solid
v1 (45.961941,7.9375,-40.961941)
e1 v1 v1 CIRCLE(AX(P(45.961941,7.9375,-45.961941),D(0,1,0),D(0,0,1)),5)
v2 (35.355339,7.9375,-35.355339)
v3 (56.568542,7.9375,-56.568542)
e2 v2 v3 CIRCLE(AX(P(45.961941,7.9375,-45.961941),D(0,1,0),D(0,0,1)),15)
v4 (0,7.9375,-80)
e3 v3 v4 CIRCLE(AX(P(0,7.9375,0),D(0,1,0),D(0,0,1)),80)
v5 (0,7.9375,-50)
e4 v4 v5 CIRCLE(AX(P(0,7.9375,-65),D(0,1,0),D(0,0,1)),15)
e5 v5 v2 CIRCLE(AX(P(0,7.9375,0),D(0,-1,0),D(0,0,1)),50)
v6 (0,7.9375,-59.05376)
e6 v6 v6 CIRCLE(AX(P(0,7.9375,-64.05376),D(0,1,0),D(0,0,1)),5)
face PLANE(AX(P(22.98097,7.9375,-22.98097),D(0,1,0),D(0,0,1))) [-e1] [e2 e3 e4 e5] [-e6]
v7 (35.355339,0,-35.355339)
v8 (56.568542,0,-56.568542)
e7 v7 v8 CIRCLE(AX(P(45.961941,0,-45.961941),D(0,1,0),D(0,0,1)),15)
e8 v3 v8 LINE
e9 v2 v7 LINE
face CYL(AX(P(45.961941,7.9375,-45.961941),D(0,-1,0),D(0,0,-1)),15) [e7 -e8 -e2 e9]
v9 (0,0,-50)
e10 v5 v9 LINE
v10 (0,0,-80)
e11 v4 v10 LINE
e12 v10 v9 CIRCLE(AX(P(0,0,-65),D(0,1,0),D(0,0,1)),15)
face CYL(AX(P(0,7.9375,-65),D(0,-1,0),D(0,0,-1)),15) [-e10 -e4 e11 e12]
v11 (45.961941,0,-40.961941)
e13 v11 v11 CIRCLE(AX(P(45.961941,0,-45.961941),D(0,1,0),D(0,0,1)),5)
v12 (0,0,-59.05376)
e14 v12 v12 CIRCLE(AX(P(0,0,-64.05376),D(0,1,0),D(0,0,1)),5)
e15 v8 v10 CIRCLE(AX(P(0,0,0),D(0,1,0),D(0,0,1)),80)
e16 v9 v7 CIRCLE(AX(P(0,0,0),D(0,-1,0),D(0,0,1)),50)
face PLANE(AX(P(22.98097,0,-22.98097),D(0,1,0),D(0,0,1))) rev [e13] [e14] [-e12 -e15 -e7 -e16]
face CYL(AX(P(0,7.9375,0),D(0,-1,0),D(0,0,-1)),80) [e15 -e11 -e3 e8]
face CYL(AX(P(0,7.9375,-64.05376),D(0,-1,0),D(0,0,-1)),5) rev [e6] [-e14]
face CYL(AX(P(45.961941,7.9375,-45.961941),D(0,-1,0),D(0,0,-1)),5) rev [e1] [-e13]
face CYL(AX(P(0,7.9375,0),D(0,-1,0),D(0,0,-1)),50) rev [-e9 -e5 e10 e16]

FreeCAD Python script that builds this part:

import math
import FreeCAD as App
import Part
import Sketcher

doc = App.newDocument("Part")
body = doc.addObject("PartDesign::Body", "Body")

sketch1 = body.newObject("Sketcher::SketchObject", "Sketch")
sketch1.AttachmentSupport = (doc.getObject("XZ_Plane"), [""])
sketch1.MapMode = "FlatFace"
sketch1.addGeometry(Part.ArcOfCircle(Part.Circle(App.Vector(0, 0, 0), App.Vector(0, 0, 1), 80), math.radians(-90), math.radians(-45)), False)
sketch1.addGeometry(Part.ArcOfCircle(Part.Circle(App.Vector(0, -65, 0), App.Vector(0, 0, 1), 15), math.radians(90), math.radians(270)), False)
sketch1.addGeometry(Part.ArcOfCircle(Part.Circle(App.Vector(0, 0, 0), App.Vector(0, 0, 1), 50), math.radians(-90), math.radians(-45)), False)
sketch1.addGeometry(Part.ArcOfCircle(Part.Circle(App.Vector(46, -46, 0), App.Vector(0, 0, 1), 15), math.radians(-45), math.radians(135)), False)
sketch1.addGeometry(Part.Circle(App.Vector(46, -46, 0), App.Vector(0, 0, 1), 5), False)
sketch1.addGeometry(Part.Circle(App.Vector(0, -64, 0), App.Vector(0, 0, 1), 5), False)
sketch1.addConstraint(Sketcher.Constraint("Tangent", 0, 1, 1, 2))
sketch1.addConstraint(Sketcher.Constraint("Tangent", 1, 1, 2, 1))
sketch1.addConstraint(Sketcher.Constraint("Tangent", 2, 2, 3, 2))
sketch1.addConstraint(Sketcher.Constraint("Tangent", 3, 1, 0, 2))
sketch1.addConstraint(Sketcher.Constraint("Coincident", 0, 3, -1, 1))
sketch1.addConstraint(Sketcher.Constraint("Coincident", 2, 3, -1, 1))
sketch1.addConstraint(Sketcher.Constraint("Coincident", 4, 3, 3, 3))
sketch1.addConstraint(Sketcher.Constraint("Equal", 4, 5))
sketch1.addConstraint(Sketcher.Constraint("PointOnObject", 1, 3, -2))
sketch1.addConstraint(Sketcher.Constraint("PointOnObject", 5, 3, -2))
sketch1.addConstraint(Sketcher.Constraint("Diameter", 4, 10.0))
sketch1.addConstraint(Sketcher.Constraint("Radius", 0, 80.0))
sketch1.addConstraint(Sketcher.Constraint("Radius", 1, 15.0))
sketch1.addConstraint(Sketcher.Constraint("DistanceX", 2, 2, 3, 3, 10.606602))
sketch1.addConstraint(Sketcher.Constraint("DistanceY", 5, 3, -1, 1, 64.05376))
pad1 = body.newObject("PartDesign::Pad", "Pad")
pad1.Profile = sketch1
pad1.Length = 7.9375
pad1.Reversed = True

doc.recompute()
